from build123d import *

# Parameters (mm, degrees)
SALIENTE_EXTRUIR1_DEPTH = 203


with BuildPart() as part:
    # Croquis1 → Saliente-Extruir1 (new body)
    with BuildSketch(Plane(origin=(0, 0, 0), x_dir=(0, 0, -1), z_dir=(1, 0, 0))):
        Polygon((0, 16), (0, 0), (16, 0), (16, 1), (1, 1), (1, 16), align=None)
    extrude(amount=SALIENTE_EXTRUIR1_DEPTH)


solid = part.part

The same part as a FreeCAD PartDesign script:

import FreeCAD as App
import Part
import Sketcher
from FreeCAD import Vector
Q = App.Units.Quantity


def add_polygon(sketch, points):
    """Adds a closed chain of lines whose ends are joined by coincident constraints."""
    first, n = sketch.GeometryCount, len(points)
    for a, b in zip(points, points[1:] + points[:1]):
        sketch.addGeometry(Part.LineSegment(App.Vector(*a, 0), App.Vector(*b, 0)), False)
    for i in range(n):
        sketch.addConstraint(Sketcher.Constraint("Coincident", first + i, 2, first + (i + 1) % n, 1))

doc = App.newDocument("Part")
body = doc.addObject("PartDesign::Body", "Body")

# Sketch on YZ plane
sketch1 = body.newObject("Sketcher::SketchObject", "Sketch")
sketch1.AttachmentSupport = (doc.getObject("YZ_Plane"), [""])
sketch1.MapMode = "FlatFace"
add_polygon(sketch1, [(16, 0), (0, 0), (0, -16), (1, -16), (1, -1), (16, -1)])  # lines 0-5
sketch1.addConstraint([
    Sketcher.Constraint("Horizontal", 0),
    Sketcher.Constraint("Vertical", 1),
    Sketcher.Constraint("Horizontal", 2),
    Sketcher.Constraint("Vertical", 3),
    Sketcher.Constraint("Horizontal", 4),
    Sketcher.Constraint("Vertical", 5),
    Sketcher.Constraint("Coincident", 0, 2, -1, 1),
    Sketcher.Constraint("Equal", 0, 1),
    Sketcher.Constraint("Equal", 4, 3),
    Sketcher.Constraint("DistanceX", 0, 2, 0, 1, Q("16 mm")),
    Sketcher.Constraint("DistanceX", 2, 1, 2, 2, Q("1 mm")),
])
pad1 = body.newObject("PartDesign::Pad", "Pad")
pad1.Profile = sketch1
pad1.Length = 203

doc.recompute()
